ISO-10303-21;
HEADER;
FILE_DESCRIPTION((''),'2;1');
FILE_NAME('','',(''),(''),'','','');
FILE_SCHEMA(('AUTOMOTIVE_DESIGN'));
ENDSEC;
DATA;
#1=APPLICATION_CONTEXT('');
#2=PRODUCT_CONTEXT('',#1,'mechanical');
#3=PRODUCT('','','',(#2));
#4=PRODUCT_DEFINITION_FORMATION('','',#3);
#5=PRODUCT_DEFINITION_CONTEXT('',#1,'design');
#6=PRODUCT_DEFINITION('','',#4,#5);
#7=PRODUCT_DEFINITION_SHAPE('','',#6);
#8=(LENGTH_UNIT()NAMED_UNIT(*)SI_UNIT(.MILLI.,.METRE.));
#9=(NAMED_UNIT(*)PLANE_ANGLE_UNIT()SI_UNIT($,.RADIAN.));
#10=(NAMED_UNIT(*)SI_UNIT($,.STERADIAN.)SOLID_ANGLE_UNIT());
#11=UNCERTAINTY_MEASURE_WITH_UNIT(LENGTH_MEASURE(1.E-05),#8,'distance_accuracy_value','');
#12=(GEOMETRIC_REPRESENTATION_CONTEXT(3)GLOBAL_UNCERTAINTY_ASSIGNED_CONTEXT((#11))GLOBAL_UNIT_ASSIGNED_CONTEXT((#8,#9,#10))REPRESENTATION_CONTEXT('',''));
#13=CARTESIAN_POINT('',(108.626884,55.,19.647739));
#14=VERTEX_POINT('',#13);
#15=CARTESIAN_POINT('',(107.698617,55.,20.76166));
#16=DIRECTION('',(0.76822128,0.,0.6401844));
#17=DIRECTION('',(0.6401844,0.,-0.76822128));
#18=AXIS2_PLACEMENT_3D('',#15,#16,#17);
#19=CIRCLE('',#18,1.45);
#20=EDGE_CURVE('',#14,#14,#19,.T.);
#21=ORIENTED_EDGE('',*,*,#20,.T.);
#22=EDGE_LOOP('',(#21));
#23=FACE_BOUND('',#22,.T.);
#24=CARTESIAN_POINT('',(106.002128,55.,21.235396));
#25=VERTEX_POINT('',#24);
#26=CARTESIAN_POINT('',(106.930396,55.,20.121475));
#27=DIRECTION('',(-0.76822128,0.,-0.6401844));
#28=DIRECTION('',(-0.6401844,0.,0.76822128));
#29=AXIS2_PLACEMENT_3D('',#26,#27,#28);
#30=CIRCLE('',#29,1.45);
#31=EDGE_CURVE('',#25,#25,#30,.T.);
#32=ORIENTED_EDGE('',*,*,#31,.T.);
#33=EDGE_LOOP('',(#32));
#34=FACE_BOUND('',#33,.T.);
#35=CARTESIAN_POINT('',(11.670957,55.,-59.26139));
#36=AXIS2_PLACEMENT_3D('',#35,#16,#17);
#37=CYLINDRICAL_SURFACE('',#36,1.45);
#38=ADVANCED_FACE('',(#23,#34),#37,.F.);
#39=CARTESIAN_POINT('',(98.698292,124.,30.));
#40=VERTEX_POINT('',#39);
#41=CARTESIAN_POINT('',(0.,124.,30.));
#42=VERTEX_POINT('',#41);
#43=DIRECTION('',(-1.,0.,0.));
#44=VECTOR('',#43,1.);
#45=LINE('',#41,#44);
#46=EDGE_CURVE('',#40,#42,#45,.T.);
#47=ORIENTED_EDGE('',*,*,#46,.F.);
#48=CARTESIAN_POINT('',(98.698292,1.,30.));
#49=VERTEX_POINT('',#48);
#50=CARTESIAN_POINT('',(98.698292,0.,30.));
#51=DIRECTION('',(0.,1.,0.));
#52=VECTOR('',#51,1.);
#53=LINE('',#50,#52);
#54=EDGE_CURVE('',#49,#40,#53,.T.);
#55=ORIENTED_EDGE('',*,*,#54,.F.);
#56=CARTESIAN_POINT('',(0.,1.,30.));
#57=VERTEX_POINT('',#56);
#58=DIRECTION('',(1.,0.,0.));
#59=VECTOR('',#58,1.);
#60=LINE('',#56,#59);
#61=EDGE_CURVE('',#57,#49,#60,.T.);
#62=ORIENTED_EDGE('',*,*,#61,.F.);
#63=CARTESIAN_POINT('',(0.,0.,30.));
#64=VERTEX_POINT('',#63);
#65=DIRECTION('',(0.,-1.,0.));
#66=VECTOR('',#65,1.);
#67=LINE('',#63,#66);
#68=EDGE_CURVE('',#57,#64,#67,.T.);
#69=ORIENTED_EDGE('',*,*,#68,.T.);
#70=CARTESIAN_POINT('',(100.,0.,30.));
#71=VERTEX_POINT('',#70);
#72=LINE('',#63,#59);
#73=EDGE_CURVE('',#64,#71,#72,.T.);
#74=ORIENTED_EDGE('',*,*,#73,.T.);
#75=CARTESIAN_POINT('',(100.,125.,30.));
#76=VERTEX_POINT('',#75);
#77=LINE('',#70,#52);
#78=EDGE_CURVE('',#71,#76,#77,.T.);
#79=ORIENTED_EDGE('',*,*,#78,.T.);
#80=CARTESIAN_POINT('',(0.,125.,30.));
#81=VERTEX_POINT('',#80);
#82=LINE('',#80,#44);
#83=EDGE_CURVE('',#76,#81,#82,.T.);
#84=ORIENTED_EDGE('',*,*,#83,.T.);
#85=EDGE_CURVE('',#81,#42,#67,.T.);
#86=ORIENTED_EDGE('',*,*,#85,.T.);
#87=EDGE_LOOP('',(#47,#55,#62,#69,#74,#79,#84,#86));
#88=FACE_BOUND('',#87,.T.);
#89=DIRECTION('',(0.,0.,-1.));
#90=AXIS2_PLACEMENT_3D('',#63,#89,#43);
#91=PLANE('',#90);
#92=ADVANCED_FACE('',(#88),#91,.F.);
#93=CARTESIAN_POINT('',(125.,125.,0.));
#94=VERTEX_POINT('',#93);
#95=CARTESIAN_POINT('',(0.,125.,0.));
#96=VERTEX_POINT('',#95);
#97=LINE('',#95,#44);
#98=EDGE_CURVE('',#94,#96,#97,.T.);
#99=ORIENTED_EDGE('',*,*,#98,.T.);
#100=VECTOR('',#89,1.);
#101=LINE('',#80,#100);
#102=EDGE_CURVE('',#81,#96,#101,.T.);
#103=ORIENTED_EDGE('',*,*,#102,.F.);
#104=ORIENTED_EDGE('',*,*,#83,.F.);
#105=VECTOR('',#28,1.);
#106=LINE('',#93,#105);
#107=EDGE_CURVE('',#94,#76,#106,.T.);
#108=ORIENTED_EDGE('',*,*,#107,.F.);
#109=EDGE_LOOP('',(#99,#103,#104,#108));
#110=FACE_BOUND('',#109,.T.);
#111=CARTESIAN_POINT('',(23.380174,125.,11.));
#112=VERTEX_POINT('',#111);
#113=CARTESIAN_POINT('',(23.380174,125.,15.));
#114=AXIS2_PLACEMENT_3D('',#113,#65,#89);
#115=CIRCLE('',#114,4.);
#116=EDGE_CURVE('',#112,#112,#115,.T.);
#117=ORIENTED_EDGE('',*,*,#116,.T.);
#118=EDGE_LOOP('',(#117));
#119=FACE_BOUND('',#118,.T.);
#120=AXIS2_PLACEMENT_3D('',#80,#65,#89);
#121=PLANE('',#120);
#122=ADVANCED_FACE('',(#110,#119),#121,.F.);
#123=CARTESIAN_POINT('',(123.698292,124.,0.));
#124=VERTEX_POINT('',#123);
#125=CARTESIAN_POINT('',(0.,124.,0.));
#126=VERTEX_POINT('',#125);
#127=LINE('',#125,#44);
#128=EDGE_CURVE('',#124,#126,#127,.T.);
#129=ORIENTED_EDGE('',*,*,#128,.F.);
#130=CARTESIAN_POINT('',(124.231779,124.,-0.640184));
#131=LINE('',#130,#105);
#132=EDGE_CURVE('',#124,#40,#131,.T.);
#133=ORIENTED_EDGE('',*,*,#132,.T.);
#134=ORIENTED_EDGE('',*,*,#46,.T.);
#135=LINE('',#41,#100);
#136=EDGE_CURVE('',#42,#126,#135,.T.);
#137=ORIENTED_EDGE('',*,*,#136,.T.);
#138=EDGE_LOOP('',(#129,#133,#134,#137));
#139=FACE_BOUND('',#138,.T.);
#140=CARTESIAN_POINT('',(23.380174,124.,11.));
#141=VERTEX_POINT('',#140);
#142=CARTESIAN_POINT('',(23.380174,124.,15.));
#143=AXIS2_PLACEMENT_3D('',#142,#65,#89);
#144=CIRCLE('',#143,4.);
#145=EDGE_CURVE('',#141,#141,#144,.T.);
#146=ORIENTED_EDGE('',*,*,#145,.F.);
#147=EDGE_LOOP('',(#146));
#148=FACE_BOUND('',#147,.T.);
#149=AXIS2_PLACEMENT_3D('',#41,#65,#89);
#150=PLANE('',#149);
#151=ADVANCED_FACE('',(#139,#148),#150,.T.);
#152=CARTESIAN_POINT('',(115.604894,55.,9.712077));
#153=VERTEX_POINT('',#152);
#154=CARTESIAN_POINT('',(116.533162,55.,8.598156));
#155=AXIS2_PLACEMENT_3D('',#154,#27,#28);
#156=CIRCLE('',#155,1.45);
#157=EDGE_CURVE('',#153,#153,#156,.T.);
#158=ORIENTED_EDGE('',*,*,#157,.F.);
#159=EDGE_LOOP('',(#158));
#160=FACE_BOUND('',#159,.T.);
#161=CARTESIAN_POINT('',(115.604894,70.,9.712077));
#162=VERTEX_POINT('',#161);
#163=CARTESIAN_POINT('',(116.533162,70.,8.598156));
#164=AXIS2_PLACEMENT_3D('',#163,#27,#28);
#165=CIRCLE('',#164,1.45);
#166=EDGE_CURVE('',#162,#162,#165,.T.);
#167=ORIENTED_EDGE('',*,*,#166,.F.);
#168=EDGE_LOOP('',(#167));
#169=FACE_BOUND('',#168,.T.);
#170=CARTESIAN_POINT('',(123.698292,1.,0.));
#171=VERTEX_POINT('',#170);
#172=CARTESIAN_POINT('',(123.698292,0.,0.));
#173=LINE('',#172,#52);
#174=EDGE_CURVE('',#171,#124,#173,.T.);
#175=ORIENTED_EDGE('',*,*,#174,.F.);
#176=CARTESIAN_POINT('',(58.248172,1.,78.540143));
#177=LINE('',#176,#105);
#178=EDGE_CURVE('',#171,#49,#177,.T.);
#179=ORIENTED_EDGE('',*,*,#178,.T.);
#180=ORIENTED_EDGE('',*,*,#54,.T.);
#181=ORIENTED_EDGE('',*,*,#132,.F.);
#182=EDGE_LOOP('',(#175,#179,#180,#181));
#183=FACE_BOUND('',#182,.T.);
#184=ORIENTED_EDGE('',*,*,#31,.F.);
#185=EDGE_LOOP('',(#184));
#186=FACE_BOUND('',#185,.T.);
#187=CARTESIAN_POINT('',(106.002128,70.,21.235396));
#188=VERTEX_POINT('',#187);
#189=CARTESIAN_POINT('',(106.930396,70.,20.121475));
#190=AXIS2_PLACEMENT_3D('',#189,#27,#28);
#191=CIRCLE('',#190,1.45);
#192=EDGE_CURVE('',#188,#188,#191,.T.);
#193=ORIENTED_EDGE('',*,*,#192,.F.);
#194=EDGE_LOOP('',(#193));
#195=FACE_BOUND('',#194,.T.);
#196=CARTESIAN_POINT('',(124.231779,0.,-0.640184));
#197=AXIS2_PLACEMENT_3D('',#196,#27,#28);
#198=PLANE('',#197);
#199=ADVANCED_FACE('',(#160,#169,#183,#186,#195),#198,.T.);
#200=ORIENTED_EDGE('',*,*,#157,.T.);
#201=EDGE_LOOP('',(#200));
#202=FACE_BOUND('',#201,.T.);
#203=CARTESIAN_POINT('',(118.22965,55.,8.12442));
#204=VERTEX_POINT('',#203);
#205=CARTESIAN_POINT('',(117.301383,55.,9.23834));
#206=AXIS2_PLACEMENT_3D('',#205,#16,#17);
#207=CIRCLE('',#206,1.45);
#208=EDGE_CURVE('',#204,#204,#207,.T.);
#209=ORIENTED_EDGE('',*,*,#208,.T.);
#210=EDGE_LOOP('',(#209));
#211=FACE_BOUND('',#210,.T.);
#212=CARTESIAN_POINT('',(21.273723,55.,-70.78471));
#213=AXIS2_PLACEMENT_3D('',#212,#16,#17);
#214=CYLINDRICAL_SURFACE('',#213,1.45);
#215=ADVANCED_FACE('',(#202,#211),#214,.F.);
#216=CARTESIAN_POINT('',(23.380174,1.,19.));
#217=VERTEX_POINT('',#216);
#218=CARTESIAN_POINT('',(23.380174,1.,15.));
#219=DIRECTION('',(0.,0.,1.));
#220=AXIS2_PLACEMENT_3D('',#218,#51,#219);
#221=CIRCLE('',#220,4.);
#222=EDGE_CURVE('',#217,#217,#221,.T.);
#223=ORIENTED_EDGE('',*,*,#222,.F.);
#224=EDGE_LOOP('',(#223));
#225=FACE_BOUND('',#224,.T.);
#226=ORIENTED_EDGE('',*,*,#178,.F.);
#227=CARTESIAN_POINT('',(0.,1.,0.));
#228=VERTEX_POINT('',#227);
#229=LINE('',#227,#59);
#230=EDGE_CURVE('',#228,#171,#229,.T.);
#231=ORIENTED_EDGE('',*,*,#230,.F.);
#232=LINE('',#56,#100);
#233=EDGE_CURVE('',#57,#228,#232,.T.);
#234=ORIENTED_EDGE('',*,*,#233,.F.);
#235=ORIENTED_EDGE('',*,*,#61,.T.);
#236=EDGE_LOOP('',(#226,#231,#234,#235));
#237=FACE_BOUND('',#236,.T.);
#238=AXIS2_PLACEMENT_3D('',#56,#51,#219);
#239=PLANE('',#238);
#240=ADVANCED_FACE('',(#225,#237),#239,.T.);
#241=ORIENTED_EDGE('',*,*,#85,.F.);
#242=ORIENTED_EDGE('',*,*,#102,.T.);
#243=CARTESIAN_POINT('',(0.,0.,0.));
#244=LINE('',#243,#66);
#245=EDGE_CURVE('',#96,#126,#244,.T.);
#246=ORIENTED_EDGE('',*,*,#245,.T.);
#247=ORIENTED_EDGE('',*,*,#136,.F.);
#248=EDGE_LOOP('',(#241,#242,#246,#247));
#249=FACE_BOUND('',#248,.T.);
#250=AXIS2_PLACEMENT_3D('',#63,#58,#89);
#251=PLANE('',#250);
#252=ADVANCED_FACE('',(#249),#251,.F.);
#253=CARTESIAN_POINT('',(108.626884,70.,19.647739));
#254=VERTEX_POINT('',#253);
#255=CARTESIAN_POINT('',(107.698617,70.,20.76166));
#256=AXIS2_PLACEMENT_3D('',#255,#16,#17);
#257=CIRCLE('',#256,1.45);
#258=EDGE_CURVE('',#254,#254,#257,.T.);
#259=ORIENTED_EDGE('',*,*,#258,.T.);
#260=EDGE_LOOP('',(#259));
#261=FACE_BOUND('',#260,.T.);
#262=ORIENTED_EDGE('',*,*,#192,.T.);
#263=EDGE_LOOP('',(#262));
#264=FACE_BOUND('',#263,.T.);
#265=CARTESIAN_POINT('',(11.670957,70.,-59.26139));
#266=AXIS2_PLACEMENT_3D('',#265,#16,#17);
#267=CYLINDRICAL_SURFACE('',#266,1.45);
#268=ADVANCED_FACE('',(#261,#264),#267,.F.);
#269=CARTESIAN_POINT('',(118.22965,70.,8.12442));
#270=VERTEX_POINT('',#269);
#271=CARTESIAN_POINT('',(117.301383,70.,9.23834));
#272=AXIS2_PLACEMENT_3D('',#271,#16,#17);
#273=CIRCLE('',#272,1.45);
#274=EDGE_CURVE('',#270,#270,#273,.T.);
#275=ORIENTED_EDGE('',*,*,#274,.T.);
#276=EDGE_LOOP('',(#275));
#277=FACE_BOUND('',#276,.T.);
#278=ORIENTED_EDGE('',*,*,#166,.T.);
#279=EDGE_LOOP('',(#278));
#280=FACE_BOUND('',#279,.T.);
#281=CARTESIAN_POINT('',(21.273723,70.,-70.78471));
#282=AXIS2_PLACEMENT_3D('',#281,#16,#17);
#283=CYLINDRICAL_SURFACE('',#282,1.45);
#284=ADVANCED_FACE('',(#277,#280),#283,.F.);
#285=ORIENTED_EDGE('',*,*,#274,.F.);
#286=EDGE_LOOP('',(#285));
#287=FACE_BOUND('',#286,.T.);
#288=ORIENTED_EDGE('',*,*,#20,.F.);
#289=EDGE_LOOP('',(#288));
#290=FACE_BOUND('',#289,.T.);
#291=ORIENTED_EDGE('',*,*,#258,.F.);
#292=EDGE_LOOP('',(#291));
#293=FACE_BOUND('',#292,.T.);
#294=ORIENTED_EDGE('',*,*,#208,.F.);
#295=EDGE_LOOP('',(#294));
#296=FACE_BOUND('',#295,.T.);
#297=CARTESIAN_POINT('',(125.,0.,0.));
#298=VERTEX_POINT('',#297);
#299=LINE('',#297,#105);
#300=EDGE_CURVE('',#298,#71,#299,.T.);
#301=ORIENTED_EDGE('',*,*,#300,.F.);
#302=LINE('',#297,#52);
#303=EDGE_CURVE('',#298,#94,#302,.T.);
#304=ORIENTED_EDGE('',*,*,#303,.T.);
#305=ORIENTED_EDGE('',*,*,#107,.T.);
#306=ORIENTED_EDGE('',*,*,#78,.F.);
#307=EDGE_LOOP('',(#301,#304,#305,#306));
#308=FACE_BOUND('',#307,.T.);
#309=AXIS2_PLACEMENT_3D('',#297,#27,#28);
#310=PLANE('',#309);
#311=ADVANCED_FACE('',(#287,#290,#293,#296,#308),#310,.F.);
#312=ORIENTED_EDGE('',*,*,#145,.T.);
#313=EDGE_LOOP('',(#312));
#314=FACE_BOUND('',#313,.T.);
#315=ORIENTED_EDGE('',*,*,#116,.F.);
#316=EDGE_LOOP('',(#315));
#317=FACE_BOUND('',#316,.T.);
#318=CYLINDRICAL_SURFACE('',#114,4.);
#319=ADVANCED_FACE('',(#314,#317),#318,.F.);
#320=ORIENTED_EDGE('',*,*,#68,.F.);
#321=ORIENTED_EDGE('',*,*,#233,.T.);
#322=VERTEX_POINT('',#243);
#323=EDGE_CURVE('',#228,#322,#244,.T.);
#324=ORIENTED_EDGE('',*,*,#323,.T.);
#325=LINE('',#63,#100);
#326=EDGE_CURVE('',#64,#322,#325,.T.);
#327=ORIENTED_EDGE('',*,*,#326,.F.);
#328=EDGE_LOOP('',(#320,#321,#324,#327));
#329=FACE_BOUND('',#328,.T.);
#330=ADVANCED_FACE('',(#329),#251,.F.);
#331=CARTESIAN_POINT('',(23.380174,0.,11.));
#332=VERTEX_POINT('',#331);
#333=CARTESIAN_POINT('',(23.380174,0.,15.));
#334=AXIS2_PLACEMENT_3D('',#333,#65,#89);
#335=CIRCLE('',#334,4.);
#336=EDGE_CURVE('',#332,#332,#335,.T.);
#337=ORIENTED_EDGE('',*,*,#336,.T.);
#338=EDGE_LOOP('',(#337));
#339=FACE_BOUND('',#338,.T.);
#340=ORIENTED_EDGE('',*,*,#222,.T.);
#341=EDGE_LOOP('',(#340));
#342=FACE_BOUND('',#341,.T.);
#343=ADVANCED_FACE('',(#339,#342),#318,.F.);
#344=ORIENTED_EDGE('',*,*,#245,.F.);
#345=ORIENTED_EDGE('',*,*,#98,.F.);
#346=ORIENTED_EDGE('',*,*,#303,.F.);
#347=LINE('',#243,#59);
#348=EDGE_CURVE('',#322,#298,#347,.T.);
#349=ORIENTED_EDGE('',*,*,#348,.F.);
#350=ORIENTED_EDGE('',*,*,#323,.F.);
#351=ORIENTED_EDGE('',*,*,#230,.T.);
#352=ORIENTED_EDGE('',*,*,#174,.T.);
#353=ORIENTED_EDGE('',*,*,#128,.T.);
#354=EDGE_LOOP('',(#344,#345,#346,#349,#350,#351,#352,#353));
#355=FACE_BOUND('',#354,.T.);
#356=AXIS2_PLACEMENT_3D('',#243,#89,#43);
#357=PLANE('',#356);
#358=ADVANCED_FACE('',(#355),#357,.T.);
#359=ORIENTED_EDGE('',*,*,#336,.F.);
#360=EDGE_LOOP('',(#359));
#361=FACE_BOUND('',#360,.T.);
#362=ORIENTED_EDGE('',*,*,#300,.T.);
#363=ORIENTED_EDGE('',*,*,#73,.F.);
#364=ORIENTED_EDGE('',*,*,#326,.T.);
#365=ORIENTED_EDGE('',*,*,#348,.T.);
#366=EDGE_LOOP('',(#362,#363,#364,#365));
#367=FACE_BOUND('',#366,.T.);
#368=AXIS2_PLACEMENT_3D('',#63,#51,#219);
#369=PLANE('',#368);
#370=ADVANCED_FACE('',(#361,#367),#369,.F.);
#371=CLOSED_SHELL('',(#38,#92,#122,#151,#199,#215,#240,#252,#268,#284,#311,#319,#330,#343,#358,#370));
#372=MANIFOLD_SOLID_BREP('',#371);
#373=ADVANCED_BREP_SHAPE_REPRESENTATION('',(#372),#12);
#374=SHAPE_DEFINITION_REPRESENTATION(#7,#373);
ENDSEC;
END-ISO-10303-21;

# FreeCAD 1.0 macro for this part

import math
import FreeCAD as App
import Part
import Sketcher
from FreeCAD import Vector
Q = App.Units.Quantity


def faces_at(feature, points):
    """Names of the faces that lie closest to the given points."""
    faces = feature.Shape.Faces
    near = lambda p: min(range(len(faces)), key=lambda i: faces[i].distToShape(Part.Vertex(*p))[0])
    return sorted({f"Face{near(p) + 1}" for p in points})


def add_polygon(sketch, points):
    """Adds a closed chain of lines whose ends are joined by coincident constraints."""
    first, n = sketch.GeometryCount, len(points)
    for a, b in zip(points, points[1:] + points[:1]):
        sketch.addGeometry(Part.LineSegment(App.Vector(*a, 0), App.Vector(*b, 0)), False)
    for i in range(n):
        sketch.addConstraint(Sketcher.Constraint("Coincident", first + i, 2, first + (i + 1) % n, 1))

doc = App.newDocument("Part")
body = doc.addObject("PartDesign::Body", "Body")

# Sketch on XY plane
sketch1 = body.newObject("Sketcher::SketchObject", "Sketch")
sketch1.AttachmentSupport = (doc.getObject("XY_Plane"), [""])
sketch1.MapMode = "FlatFace"
add_polygon(sketch1, [(0, 125), (0, 0), (125, 0), (125, 125)])  # lines 0-3
sketch1.addConstraint([
    Sketcher.Constraint("Vertical", 0),
    Sketcher.Constraint("Horizontal", 1),
    Sketcher.Constraint("Vertical", 2),
    Sketcher.Constraint("Horizontal", 3),
    Sketcher.Constraint("Coincident", 0, 2, -1, 1),
    Sketcher.Constraint("Equal", 3, 0),
    Sketcher.Constraint("DistanceX", 1, 1, 1, 2, Q("125 mm")),
])
pad1 = body.newObject("PartDesign::Pad", "Pad")
pad1.Profile = sketch1
pad1.Length = 30

# Sketch on XZ plane
sketch2 = body.newObject("Sketcher::SketchObject", "Sketch001")
sketch2.AttachmentSupport = (doc.getObject("XZ_Plane"), [""])
sketch2.MapMode = "FlatFace"
sketch2.AttachmentOffset = App.Placement(Vector(0, 0, -125), App.Rotation())
add_polygon(sketch2, [(125, 0), (100, 30), (125, 30)])  # lines 0-2
sketch2.addConstraint([
    Sketcher.Constraint("Horizontal", 1),
    Sketcher.Constraint("Vertical", 2),
    Sketcher.Constraint("PointOnObject", 2, 2, -1),
    Sketcher.Constraint("DistanceX", 1, 1, 1, 2, Q("25 mm")),
    Sketcher.Constraint("DistanceY", 2, 2, 2, 1, Q("30 mm")),
    Sketcher.Constraint("DistanceX", -1, 1, 0, 2, Q("100 mm")),
])
pocket1 = body.newObject("PartDesign::Pocket", "Pocket")
pocket1.Profile = sketch2
pocket1.Length = 125
pocket1.Reversed = True
doc.recompute()

thickness = body.newObject("PartDesign::Thickness", "Thickness")
thickness.Base = (pocket1, faces_at(pocket1, [(50, 62.5, 30), (62.5, 62.5, 0), (0, 62.5, 15)]))
thickness.Value = 1
thickness.Reversed = True
thickness.Join = "Intersection"

# Sketch on XZ plane
sketch3 = body.newObject("Sketcher::SketchObject", "Sketch002")
sketch3.AttachmentSupport = (doc.getObject("XZ_Plane"), [""])
sketch3.MapMode = "FlatFace"
sketch3.addGeometry(Part.Circle(Vector(23.4, 15, 0), Vector(0, 0, 1), 4), False)
sketch3.addConstraint([
    Sketcher.Constraint("Diameter", 0, Q("8 mm")),
    Sketcher.Constraint("DistanceY", -1, 1, 0, 3, Q("15 mm")),
    Sketcher.Constraint("DistanceX", -1, 1, 0, 3, Q("23.380174 mm")),
])
pocket2 = body.newObject("PartDesign::Pocket", "Pocket001")
pocket2.Profile = sketch3
pocket2.Length = 125

# Sketch on an angled plane
sketch4 = body.newObject("Sketcher::SketchObject", "Sketch003")
sketch4.Placement = App.Placement(Vector(73.770492, 0, 61.47541), App.Rotation(Vector(0.6401844, 0, -0.76822128), Vector(0, 1.000000001, 0), Vector(0.76822128, 0, 0.6401844), "ZXY"))
sketch4.addGeometry([
    Part.ArcOfCircle(Part.Circle(Vector(53, 70, 0), Vector(0, 0, 1), 1.4), math.radians(0), math.radians(270)),  # 0
    Part.ArcOfCircle(Part.Circle(Vector(53, 70, 0), Vector(0, 0, 1), 1.4), math.radians(-90), math.radians(0)),  # 1
    Part.ArcOfCircle(Part.Circle(Vector(68, 70, 0), Vector(0, 0, 1), 1.4), math.radians(0), math.radians(180)),  # 2
    Part.ArcOfCircle(Part.Circle(Vector(68, 70, 0), Vector(0, 0, 1), 1.5), math.radians(-180), math.radians(-90)),  # 3
    Part.ArcOfCircle(Part.Circle(Vector(68, 70, 0), Vector(0, 0, 1), 1.4), math.radians(-90), math.radians(0)),  # 4
    Part.ArcOfCircle(Part.Circle(Vector(53, 55, 0), Vector(0, 0, 1), 1.4), math.radians(0), math.radians(90)),  # 5
    Part.ArcOfCircle(Part.Circle(Vector(53, 55, 0), Vector(0, 0, 1), 1.4), math.radians(90), math.radians(360)),  # 6
    Part.ArcOfCircle(Part.Circle(Vector(68, 55, 0), Vector(0, 0, 1), 1.4), math.radians(0), math.radians(90)),  # 7
    Part.ArcOfCircle(Part.Circle(Vector(68, 55, 0), Vector(0, 0, 1), 1.5), math.radians(90), math.radians(180)),  # 8
    Part.ArcOfCircle(Part.Circle(Vector(68, 55, 0), Vector(0, 0, 1), 1.4), math.radians(180), math.radians(360)),  # 9
], False)
sketch4.addConstraint([
    Sketcher.Constraint("Tangent", 0, 1, 1, 2),
    Sketcher.Constraint("Coincident", 1, 1, 0, 2),
    Sketcher.Constraint("Tangent", 2, 2, 3, 1),
    Sketcher.Constraint("Tangent", 3, 2, 4, 1),
    Sketcher.Constraint("Tangent", 4, 2, 2, 1),
    Sketcher.Constraint("Tangent", 5, 1, 6, 2),
    Sketcher.Constraint("Coincident", 6, 1, 5, 2),
    Sketcher.Constraint("Tangent", 7, 2, 8, 1),
    Sketcher.Constraint("Tangent", 8, 2, 9, 1),
    Sketcher.Constraint("Tangent", 9, 2, 7, 1),
    Sketcher.Constraint("Equal", 1, 2),
    Sketcher.Constraint("Equal", 4, 5),
    Sketcher.Constraint("Equal", 6, 7),
    Sketcher.Constraint("Horizontal", 1, 3, 2, 3),
    Sketcher.Constraint("Horizontal", 6, 3, 7, 3),
    Sketcher.Constraint("Horizontal", 4, 3, 0, 1),
    Sketcher.Constraint("Horizontal", 0, 1, 2, 2),
    Sketcher.Constraint("Horizontal", 2, 2, 4, 2),
    Sketcher.Constraint("Horizontal", 9, 3, 5, 1),
    Sketcher.Constraint("Horizontal", 5, 1, 8, 2),
    Sketcher.Constraint("Horizontal", 8, 2, 9, 2),
    Sketcher.Constraint("Vertical", 1, 3, 5, 3),
    Sketcher.Constraint("Vertical", 4, 3, 7, 3),
    Sketcher.Constraint("Vertical", 6, 3, 1, 1),
    Sketcher.Constraint("Vertical", 9, 3, 3, 2),
    Sketcher.Constraint("Vertical", 1, 1, 6, 1),
    Sketcher.Constraint("Vertical", 3, 2, 7, 2),
    Sketcher.Constraint("Radius", 0, Q("1.45 mm")),
    Sketcher.Constraint("DistanceY", -1, 1, 0, 3, Q("70 mm")),
    Sketcher.Constraint("DistanceY", -1, 1, 5, 3, Q("55 mm")),
    Sketcher.Constraint("DistanceX", 1, 3, 2, 3, Q("15 mm")),
    Sketcher.Constraint("DistanceX", -1, 1, 0, 3, Q("52.997426 mm")),
])
pocket3 = body.newObject("PartDesign::Pocket", "Pocket002")
pocket3.Profile = sketch4
pocket3.Length = 125

doc.recompute()
